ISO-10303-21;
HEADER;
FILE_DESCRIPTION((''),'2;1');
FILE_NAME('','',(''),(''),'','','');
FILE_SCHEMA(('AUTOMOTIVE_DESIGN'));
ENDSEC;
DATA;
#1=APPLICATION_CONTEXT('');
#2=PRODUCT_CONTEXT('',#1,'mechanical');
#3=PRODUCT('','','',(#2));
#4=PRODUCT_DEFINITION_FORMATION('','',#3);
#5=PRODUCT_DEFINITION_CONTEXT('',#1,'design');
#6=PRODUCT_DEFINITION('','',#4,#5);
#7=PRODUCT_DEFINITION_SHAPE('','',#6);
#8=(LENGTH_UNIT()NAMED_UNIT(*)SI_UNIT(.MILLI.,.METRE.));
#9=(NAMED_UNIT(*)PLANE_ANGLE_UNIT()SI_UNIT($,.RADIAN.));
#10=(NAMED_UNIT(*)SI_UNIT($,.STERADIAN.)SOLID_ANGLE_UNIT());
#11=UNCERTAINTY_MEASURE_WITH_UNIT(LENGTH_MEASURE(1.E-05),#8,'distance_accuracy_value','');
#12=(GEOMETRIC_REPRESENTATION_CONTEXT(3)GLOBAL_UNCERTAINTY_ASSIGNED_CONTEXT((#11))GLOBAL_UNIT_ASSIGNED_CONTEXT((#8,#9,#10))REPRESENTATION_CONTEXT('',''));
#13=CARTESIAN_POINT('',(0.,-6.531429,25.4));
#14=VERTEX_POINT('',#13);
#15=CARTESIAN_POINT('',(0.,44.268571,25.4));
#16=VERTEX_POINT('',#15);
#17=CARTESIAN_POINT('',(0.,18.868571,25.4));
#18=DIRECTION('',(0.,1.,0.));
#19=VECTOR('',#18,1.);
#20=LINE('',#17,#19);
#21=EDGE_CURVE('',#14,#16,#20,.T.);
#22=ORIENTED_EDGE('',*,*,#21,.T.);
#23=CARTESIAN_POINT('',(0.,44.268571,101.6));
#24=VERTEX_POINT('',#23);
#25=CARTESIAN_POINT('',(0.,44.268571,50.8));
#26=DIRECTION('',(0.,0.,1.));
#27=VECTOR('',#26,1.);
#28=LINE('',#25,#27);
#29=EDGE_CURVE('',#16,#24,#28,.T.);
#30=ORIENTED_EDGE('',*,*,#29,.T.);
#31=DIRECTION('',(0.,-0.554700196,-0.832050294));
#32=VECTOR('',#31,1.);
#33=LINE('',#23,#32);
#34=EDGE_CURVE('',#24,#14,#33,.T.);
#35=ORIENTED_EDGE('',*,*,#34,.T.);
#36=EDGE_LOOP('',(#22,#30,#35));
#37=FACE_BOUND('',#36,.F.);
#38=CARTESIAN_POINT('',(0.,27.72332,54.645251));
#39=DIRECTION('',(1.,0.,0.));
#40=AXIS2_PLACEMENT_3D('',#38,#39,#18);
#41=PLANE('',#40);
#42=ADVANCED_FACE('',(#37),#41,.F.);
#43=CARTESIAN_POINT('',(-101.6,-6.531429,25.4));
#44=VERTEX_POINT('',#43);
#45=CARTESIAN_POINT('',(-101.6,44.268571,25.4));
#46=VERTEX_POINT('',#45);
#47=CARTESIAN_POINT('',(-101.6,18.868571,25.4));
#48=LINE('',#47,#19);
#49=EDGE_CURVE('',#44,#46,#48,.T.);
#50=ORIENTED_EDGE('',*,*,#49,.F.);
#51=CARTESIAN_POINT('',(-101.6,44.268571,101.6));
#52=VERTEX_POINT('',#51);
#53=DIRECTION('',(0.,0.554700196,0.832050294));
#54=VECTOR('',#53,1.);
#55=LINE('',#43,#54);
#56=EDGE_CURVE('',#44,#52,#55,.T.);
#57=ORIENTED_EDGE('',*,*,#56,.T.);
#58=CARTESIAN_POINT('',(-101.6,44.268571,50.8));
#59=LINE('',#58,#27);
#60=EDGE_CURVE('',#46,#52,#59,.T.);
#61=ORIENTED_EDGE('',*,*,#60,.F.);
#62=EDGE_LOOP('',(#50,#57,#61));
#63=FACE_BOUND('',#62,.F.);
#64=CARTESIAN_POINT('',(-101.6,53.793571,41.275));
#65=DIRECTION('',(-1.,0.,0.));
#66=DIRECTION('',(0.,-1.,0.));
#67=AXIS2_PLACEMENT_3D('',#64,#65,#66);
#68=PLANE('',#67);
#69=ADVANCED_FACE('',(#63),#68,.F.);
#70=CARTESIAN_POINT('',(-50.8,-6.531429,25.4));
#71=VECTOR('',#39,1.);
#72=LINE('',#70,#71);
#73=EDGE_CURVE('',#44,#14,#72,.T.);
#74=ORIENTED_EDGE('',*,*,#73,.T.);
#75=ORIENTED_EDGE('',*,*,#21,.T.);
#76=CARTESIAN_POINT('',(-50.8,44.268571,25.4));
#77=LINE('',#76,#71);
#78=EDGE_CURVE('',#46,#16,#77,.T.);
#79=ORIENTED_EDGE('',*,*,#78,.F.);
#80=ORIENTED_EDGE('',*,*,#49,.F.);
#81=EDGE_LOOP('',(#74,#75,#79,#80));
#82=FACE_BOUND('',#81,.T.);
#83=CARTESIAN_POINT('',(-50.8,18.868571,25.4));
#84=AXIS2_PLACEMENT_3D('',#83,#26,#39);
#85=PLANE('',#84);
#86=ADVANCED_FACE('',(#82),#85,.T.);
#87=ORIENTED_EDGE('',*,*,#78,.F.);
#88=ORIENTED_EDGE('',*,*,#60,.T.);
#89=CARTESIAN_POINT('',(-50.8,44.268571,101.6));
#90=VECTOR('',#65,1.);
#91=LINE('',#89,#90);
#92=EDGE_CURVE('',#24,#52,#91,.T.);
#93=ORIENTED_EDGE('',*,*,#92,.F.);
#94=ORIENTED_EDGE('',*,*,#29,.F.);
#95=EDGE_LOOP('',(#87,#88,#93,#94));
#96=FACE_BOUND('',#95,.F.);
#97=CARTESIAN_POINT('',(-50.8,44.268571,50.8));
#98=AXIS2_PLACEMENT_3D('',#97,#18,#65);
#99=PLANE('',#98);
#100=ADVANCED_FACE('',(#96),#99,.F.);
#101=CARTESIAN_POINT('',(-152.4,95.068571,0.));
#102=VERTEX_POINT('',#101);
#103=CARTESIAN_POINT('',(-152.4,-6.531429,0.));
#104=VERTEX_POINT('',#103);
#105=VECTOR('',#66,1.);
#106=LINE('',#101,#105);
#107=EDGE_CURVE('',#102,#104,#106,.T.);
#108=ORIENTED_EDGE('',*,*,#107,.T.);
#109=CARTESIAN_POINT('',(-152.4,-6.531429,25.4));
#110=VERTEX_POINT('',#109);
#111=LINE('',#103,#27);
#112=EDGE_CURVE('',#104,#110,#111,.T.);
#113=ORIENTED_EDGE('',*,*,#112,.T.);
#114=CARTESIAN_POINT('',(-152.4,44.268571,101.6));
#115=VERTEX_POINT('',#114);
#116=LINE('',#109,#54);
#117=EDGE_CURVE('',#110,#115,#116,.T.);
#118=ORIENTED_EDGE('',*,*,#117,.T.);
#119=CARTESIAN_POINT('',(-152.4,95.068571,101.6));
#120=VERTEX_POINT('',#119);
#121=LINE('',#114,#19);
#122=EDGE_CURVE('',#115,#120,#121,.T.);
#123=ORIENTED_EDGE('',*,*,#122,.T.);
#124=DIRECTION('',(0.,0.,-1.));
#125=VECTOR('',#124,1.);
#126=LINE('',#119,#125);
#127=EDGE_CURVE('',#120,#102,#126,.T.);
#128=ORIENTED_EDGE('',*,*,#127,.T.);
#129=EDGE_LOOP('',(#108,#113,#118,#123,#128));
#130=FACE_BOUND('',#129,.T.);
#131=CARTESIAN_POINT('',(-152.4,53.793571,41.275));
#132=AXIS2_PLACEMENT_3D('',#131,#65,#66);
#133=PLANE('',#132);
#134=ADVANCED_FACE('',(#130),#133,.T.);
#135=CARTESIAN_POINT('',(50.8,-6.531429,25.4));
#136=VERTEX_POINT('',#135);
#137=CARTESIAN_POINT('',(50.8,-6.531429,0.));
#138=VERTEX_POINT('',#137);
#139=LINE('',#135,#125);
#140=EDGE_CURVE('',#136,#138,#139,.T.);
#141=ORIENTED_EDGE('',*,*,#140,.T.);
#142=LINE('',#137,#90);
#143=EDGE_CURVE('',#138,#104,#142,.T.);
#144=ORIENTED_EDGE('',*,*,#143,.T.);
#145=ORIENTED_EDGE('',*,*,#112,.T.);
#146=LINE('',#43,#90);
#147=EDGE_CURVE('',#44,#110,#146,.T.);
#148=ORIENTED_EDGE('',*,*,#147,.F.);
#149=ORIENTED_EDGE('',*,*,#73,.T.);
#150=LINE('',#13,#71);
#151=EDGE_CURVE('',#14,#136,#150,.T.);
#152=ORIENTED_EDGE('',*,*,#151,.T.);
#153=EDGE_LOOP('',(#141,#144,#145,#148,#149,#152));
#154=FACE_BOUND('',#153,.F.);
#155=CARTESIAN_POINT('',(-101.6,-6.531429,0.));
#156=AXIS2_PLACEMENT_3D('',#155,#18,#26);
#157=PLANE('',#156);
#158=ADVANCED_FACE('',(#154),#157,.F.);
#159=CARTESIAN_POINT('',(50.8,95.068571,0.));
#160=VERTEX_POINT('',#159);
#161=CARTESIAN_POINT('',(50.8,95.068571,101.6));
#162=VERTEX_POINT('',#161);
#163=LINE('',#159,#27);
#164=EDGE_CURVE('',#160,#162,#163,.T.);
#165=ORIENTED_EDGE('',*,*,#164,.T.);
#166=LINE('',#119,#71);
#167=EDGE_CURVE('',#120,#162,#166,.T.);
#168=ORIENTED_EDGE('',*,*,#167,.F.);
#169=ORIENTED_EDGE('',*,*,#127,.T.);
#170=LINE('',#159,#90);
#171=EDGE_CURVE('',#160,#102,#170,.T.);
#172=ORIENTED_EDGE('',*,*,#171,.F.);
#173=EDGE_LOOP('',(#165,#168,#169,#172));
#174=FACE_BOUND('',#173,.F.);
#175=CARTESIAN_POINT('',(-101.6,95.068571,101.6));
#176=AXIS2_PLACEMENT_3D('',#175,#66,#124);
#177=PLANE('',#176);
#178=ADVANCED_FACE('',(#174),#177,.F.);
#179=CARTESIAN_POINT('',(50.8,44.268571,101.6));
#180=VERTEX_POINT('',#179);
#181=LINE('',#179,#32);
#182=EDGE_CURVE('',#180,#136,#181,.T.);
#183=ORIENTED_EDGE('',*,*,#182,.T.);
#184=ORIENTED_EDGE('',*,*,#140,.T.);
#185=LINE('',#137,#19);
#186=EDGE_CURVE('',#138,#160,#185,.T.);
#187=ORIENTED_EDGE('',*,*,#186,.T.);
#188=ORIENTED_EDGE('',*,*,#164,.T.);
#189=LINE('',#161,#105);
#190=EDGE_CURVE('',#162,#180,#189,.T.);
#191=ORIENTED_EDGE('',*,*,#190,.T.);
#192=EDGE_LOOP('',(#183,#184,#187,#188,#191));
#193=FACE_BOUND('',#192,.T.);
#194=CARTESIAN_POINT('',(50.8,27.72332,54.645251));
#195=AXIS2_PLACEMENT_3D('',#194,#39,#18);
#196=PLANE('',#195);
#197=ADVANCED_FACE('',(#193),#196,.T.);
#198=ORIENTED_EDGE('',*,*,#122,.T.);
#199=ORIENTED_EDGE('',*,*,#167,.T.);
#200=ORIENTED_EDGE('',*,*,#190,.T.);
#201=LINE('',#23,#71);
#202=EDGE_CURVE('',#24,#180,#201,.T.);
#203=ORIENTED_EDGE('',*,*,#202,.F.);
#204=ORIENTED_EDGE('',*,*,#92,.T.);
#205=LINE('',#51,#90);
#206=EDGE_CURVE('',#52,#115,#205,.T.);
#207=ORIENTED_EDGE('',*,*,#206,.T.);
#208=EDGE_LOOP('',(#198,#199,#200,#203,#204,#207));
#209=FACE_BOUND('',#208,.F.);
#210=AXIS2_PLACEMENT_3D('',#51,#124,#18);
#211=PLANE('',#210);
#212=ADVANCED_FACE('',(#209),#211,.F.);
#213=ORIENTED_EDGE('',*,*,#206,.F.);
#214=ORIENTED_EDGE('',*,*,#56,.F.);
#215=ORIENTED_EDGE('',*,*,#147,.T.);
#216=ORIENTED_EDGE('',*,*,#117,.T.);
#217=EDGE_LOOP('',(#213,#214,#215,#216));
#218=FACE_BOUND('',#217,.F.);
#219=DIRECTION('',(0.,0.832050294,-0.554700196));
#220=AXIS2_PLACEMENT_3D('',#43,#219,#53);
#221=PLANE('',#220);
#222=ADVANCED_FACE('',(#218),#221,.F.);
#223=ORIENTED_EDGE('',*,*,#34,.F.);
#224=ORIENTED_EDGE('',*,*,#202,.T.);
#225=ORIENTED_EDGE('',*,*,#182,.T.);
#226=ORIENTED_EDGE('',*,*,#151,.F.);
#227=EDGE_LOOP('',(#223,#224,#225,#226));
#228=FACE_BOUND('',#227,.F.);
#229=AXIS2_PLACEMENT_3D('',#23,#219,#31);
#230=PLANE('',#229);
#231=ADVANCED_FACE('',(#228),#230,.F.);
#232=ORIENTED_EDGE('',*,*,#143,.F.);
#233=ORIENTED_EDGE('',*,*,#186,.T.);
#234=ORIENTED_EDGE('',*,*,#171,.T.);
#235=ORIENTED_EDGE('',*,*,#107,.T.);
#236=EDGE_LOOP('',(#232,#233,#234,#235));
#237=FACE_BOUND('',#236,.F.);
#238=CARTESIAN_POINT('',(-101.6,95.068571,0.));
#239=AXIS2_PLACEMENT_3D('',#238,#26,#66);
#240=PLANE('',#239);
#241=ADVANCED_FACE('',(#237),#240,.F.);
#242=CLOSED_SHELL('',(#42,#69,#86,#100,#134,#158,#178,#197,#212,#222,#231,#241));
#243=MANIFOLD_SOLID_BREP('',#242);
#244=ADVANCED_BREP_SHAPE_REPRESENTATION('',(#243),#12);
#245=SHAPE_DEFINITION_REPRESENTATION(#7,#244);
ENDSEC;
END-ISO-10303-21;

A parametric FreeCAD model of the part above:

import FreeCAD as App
import Part
import Sketcher
from FreeCAD import Vector
Q = App.Units.Quantity

doc = App.newDocument("Part")
body = doc.addObject("PartDesign::Body", "Body")

# Sketch on XY plane
sketch1 = body.newObject("Sketcher::SketchObject", "Sketch")
sketch1.AttachmentSupport = (doc.getObject("XY_Plane"), [""])
sketch1.MapMode = "FlatFace"
sketch1.addGeometry(Part.LineSegment(Vector(-102, 44, 0), Vector(-102, -7, 0)), False)
sketch1.addGeometry(Part.LineSegment(Vector(-102, -7, 0), Vector(0, -7, 0)), False)
sketch1.addGeometry(Part.LineSegment(Vector(0, -7, 0), Vector(0, 44, 0)), False)
sketch1.addGeometry(Part.LineSegment(Vector(0, 44, 0), Vector(-102, 44, 0)), False)
sketch1.addConstraint(Sketcher.Constraint("Coincident", 0, 2, 1, 1))
sketch1.addConstraint(Sketcher.Constraint("Coincident", 1, 2, 2, 1))
sketch1.addConstraint(Sketcher.Constraint("Coincident", 2, 2, 3, 1))
sketch1.addConstraint(Sketcher.Constraint("Coincident", 3, 2, 0, 1))
sketch1.addConstraint(Sketcher.Constraint("Vertical", 0))
sketch1.addConstraint(Sketcher.Constraint("Horizontal", 1))
sketch1.addConstraint(Sketcher.Constraint("Vertical", 2))
sketch1.addConstraint(Sketcher.Constraint("Horizontal", 3))
sketch1.addConstraint(Sketcher.Constraint("PointOnObject", 1, 2, -2))
sketch1.addConstraint(Sketcher.Constraint("DistanceX", 1, 1, 1, 2, Q("4 in")))
sketch1.addConstraint(Sketcher.Constraint("DistanceY", 0, 2, 0, 1, Q("2 in")))
sketch1.addConstraint(Sketcher.Constraint("DistanceY", 0, 2, -1, 1, Q("6.531429 mm")))
pad1 = body.newObject("PartDesign::Pad", "Pad")
pad1.Profile = sketch1
pad1.Length = Q("1 in")

# Sketch on XZ plane
sketch2 = body.newObject("Sketcher::SketchObject", "Sketch001")
sketch2.AttachmentSupport = (doc.getObject("XZ_Plane"), [""])
sketch2.MapMode = "FlatFace"
sketch2.AttachmentOffset = App.Placement(Vector(0, 0, -44.268571), App.Rotation())
sketch2.addGeometry(Part.LineSegment(Vector(0, 102, 0), Vector(0, 0, 0)), False)
sketch2.addGeometry(Part.LineSegment(Vector(0, 0, 0), Vector(-102, 0, 0)), False)
sketch2.addGeometry(Part.LineSegment(Vector(-102, 0, 0), Vector(-102, 102, 0)), False)
sketch2.addGeometry(Part.LineSegment(Vector(-102, 102, 0), Vector(0, 102, 0)), False)
sketch2.addConstraint(Sketcher.Constraint("Coincident", 0, 2, 1, 1))
sketch2.addConstraint(Sketcher.Constraint("Coincident", 1, 2, 2, 1))
sketch2.addConstraint(Sketcher.Constraint("Coincident", 2, 2, 3, 1))
sketch2.addConstraint(Sketcher.Constraint("Coincident", 3, 2, 0, 1))
sketch2.addConstraint(Sketcher.Constraint("Vertical", 0))
sketch2.addConstraint(Sketcher.Constraint("Horizontal", 1))
sketch2.addConstraint(Sketcher.Constraint("Vertical", 2))
sketch2.addConstraint(Sketcher.Constraint("Horizontal", 3))
sketch2.addConstraint(Sketcher.Constraint("Coincident", 0, 2, -1, 1))
sketch2.addConstraint(Sketcher.Constraint("Equal", 3, 0))
sketch2.addConstraint(Sketcher.Constraint("DistanceX", 1, 2, 1, 1, Q("4 in")))
pad2 = body.newObject("PartDesign::Pad", "Pad001")
pad2.Profile = sketch2
pad2.Length = Q("2 in")
pad2.Reversed = True

# Sketch on YZ plane
sketch3 = body.newObject("Sketcher::SketchObject", "Sketch002")
sketch3.AttachmentSupport = (doc.getObject("YZ_Plane"), [""])
sketch3.MapMode = "FlatFace"
sketch3.addGeometry(Part.LineSegment(Vector(44, 102, 0), Vector(-7, 25, 0)), False)
sketch3.addGeometry(Part.LineSegment(Vector(-7, 25, 0), Vector(-7, 0, 0)), False)
sketch3.addGeometry(Part.LineSegment(Vector(-7, 0, 0), Vector(95, 0, 0)), False)
sketch3.addGeometry(Part.LineSegment(Vector(95, 0, 0), Vector(95, 102, 0)), False)
sketch3.addGeometry(Part.LineSegment(Vector(95, 102, 0), Vector(44, 102, 0)), False)
sketch3.addConstraint(Sketcher.Constraint("Coincident", 0, 2, 1, 1))
sketch3.addConstraint(Sketcher.Constraint("Coincident", 1, 2, 2, 1))
sketch3.addConstraint(Sketcher.Constraint("Coincident", 2, 2, 3, 1))
sketch3.addConstraint(Sketcher.Constraint("Coincident", 3, 2, 4, 1))
sketch3.addConstraint(Sketcher.Constraint("Coincident", 4, 2, 0, 1))
sketch3.addConstraint(Sketcher.Constraint("Vertical", 1))
sketch3.addConstraint(Sketcher.Constraint("Horizontal", 2))
sketch3.addConstraint(Sketcher.Constraint("Vertical", 3))
sketch3.addConstraint(Sketcher.Constraint("Horizontal", 4))
sketch3.addConstraint(Sketcher.Constraint("PointOnObject", 1, 2, -1))
sketch3.addConstraint(Sketcher.Constraint("Equal", 2, 3))
sketch3.addConstraint(Sketcher.Constraint("DistanceX", 2, 1, 2, 2, Q("4 in")))
sketch3.addConstraint(Sketcher.Constraint("DistanceX", 4, 2, 4, 1, Q("2 in")))
sketch3.addConstraint(Sketcher.Constraint("DistanceY", 1, 2, 1, 1, Q("1 in")))
sketch3.addConstraint(Sketcher.Constraint("DistanceX", 0, 2, -1, 1, Q("6.531429 mm")))
pad3 = body.newObject("PartDesign::Pad", "Pad002")
pad3.Profile = sketch3
pad3.Length = Q("2 in")

# Sketch on YZ plane
sketch4 = body.newObject("Sketcher::SketchObject", "Sketch003")
sketch4.AttachmentSupport = (doc.getObject("YZ_Plane"), [""])
sketch4.MapMode = "FlatFace"
sketch4.AttachmentOffset = App.Placement(Vector(0, 0, -4 * 25.4), App.Rotation())
sketch4.addGeometry(Part.LineSegment(Vector(95, 102, 0), Vector(95, 0, 0)), False)
sketch4.addGeometry(Part.LineSegment(Vector(95, 0, 0), Vector(-7, 0, 0)), False)
sketch4.addGeometry(Part.LineSegment(Vector(-7, 0, 0), Vector(-7, 25, 0)), False)
sketch4.addGeometry(Part.LineSegment(Vector(-7, 25, 0), Vector(44, 102, 0)), False)
sketch4.addGeometry(Part.LineSegment(Vector(44, 102, 0), Vector(95, 102, 0)), False)
sketch4.addConstraint(Sketcher.Constraint("Coincident", 0, 2, 1, 1))
sketch4.addConstraint(Sketcher.Constraint("Coincident", 1, 2, 2, 1))
sketch4.addConstraint(Sketcher.Constraint("Coincident", 2, 2, 3, 1))
sketch4.addConstraint(Sketcher.Constraint("Coincident", 3, 2, 4, 1))
sketch4.addConstraint(Sketcher.Constraint("Coincident", 4, 2, 0, 1))
sketch4.addConstraint(Sketcher.Constraint("Vertical", 0))
sketch4.addConstraint(Sketcher.Constraint("Horizontal", 1))
sketch4.addConstraint(Sketcher.Constraint("Vertical", 2))
sketch4.addConstraint(Sketcher.Constraint("Horizontal", 4))
sketch4.addConstraint(Sketcher.Constraint("PointOnObject", 0, 2, -1))
sketch4.addConstraint(Sketcher.Constraint("Equal", 1, 0))
sketch4.addConstraint(Sketcher.Constraint("DistanceX", 1, 2, 1, 1, Q("4 in")))
sketch4.addConstraint(Sketcher.Constraint("DistanceX", 4, 1, 4, 2, Q("2 in")))
sketch4.addConstraint(Sketcher.Constraint("DistanceY", 2, 1, 2, 2, Q("1 in")))
sketch4.addConstraint(Sketcher.Constraint("DistanceX", -1, 1, 0, 2, Q("95.068571 mm")))
pad4 = body.newObject("PartDesign::Pad", "Pad003")
pad4.Profile = sketch4
pad4.Length = Q("2 in")
pad4.Reversed = True

doc.recompute()
